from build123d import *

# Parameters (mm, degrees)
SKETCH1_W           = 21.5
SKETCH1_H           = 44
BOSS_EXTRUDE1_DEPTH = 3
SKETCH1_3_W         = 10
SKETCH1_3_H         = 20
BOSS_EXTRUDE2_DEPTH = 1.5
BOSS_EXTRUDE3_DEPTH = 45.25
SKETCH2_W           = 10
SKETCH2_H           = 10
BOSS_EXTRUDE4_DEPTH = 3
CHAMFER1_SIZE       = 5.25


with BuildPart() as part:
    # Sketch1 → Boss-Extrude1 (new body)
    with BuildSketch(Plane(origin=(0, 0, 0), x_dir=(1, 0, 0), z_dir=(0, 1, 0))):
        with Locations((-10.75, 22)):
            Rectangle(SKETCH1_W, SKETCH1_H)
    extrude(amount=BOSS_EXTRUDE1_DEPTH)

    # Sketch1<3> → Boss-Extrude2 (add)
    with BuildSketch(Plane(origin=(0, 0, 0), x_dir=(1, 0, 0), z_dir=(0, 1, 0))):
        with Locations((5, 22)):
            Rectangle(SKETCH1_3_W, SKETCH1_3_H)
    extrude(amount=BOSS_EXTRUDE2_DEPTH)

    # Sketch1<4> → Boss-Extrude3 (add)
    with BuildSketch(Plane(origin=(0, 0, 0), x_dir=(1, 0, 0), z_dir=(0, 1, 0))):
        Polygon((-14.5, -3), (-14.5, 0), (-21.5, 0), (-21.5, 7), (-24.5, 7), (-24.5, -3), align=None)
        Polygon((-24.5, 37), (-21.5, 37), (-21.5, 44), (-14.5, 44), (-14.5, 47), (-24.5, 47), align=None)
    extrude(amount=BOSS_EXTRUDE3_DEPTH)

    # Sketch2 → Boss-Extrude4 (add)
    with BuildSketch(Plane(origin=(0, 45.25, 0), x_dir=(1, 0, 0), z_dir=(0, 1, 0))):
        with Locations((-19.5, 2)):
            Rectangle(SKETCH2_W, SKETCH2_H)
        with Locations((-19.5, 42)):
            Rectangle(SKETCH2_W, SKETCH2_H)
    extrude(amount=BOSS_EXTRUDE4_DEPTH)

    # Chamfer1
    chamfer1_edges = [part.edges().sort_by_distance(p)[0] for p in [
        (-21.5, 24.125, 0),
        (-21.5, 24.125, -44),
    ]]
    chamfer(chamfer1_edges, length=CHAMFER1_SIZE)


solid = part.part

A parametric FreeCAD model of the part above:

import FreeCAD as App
import Part
import Sketcher

V = App.Vector


def edges_at(feature, points):
    """Names of the edges that pass closest to the given points."""
    edges = feature.Shape.Edges
    near = lambda p: min(range(len(edges)), key=lambda i: edges[i].distToShape(Part.Vertex(*p))[0])
    return sorted({f"Edge{near(p) + 1}" for p in points})

doc = App.newDocument("Part")
body = doc.addObject("PartDesign::Body", "Body")

sketch1 = doc.addObject("Sketcher::SketchObject", "Sketch")
body.addObject(sketch1)
sketch1.AttachmentSupport = (doc.XZ_Plane, [""])
sketch1.MapMode = "FlatFace"
sketch1.addGeometry([
    Part.LineSegment(V(-22, -44, 0), V(-22, 0, 0)),
    Part.LineSegment(V(-22, 0, 0), V(0, 0, 0)),
    Part.LineSegment(V(0, 0, 0), V(0, -44, 0)),
    Part.LineSegment(V(0, -44, 0), V(-22, -44, 0)),
], False)
sketch1.addConstraint([
    Sketcher.Constraint("Coincident", 0, 2, 1, 1),
    Sketcher.Constraint("Coincident", 1, 2, 2, 1),
    Sketcher.Constraint("Coincident", 2, 2, 3, 1),
    Sketcher.Constraint("Coincident", 3, 2, 0, 1),
    Sketcher.Constraint("Vertical", 0),
    Sketcher.Constraint("Horizontal", 1),
    Sketcher.Constraint("Vertical", 2),
    Sketcher.Constraint("Horizontal", 3),
    Sketcher.Constraint("Coincident", 1, 2, -1, 1),
    Sketcher.Constraint("DistanceY", 0, 1, 0, 2, 44.0),
    Sketcher.Constraint("DistanceX", 1, 1, 1, 2, 21.5),
])
pad1 = doc.addObject("PartDesign::Pad", "Pad")
body.addObject(pad1)
pad1.Profile = sketch1
pad1.Length = 3
pad1.Reversed = True

sketch2 = doc.addObject("Sketcher::SketchObject", "Sketch001")
body.addObject(sketch2)
sketch2.AttachmentSupport = (doc.XZ_Plane, [""])
sketch2.MapMode = "FlatFace"
sketch2.addGeometry([
    Part.LineSegment(V(0, -32, 0), V(0, -12, 0)),
    Part.LineSegment(V(0, -12, 0), V(10, -12, 0)),
    Part.LineSegment(V(10, -12, 0), V(10, -32, 0)),
    Part.LineSegment(V(10, -32, 0), V(0, -32, 0)),
], False)
sketch2.addConstraint([
    Sketcher.Constraint("Coincident", 0, 2, 1, 1),
    Sketcher.Constraint("Coincident", 1, 2, 2, 1),
    Sketcher.Constraint("Coincident", 2, 2, 3, 1),
    Sketcher.Constraint("Coincident", 3, 2, 0, 1),
    Sketcher.Constraint("Vertical", 0),
    Sketcher.Constraint("Horizontal", 1),
    Sketcher.Constraint("Vertical", 2),
    Sketcher.Constraint("Horizontal", 3),
    Sketcher.Constraint("PointOnObject", 0, 2, -2),
    Sketcher.Constraint("DistanceX", 1, 1, 1, 2, 10.0),
    Sketcher.Constraint("DistanceY", 0, 1, 0, 2, 20.0),
    Sketcher.Constraint("DistanceY", 0, 2, -1, 1, 12.0),
])
pad2 = doc.addObject("PartDesign::Pad", "Pad001")
body.addObject(pad2)
pad2.Profile = sketch2
pad2.Length = 1.5
pad2.Reversed = True

sketch3 = doc.addObject("Sketcher::SketchObject", "Sketch002")
body.addObject(sketch3)
sketch3.AttachmentSupport = (doc.XZ_Plane, [""])
sketch3.MapMode = "FlatFace"
sketch3.addGeometry([
    Part.LineSegment(V(-14.5, 3, 0), V(-14.5, 0, 0)),
    Part.LineSegment(V(-14.5, 0, 0), V(-21.5, 0, 0)),
    Part.LineSegment(V(-21.5, 0, 0), V(-21.5, -7, 0)),
    Part.LineSegment(V(-21.5, -7, 0), V(-24.5, -7, 0)),
    Part.LineSegment(V(-24.5, -7, 0), V(-24.5, 3, 0)),
    Part.LineSegment(V(-24.5, 3, 0), V(-14.5, 3, 0)),
    Part.LineSegment(V(-24.5, -37, 0), V(-21.5, -37, 0)),
    Part.LineSegment(V(-21.5, -37, 0), V(-21.5, -44, 0)),
    Part.LineSegment(V(-21.5, -44, 0), V(-14.5, -44, 0)),
    Part.LineSegment(V(-14.5, -44, 0), V(-14.5, -47, 0)),
    Part.LineSegment(V(-14.5, -47, 0), V(-24.5, -47, 0)),
    Part.LineSegment(V(-24.5, -47, 0), V(-24.5, -37, 0)),
], False)
sketch3.addConstraint([
    Sketcher.Constraint("Coincident", 0, 2, 1, 1),
    Sketcher.Constraint("Coincident", 1, 2, 2, 1),
    Sketcher.Constraint("Coincident", 2, 2, 3, 1),
    Sketcher.Constraint("Coincident", 3, 2, 4, 1),
    Sketcher.Constraint("Coincident", 4, 2, 5, 1),
    Sketcher.Constraint("Coincident", 5, 2, 0, 1),
    Sketcher.Constraint("Coincident", 6, 2, 7, 1),
    Sketcher.Constraint("Coincident", 7, 2, 8, 1),
    Sketcher.Constraint("Coincident", 8, 2, 9, 1),
    Sketcher.Constraint("Coincident", 9, 2, 10, 1),
    Sketcher.Constraint("Coincident", 10, 2, 11, 1),
    Sketcher.Constraint("Coincident", 11, 2, 6, 1),
    Sketcher.Constraint("Vertical", 0),
    Sketcher.Constraint("Horizontal", 1),
    Sketcher.Constraint("Vertical", 2),
    Sketcher.Constraint("Horizontal", 3),
    Sketcher.Constraint("Vertical", 4),
    Sketcher.Constraint("Horizontal", 5),
    Sketcher.Constraint("Horizontal", 6),
    Sketcher.Constraint("Vertical", 7),
    Sketcher.Constraint("Horizontal", 8),
    Sketcher.Constraint("Vertical", 9),
    Sketcher.Constraint("Horizontal", 10),
    Sketcher.Constraint("Vertical", 11),
    Sketcher.Constraint("PointOnObject", 0, 2, -1),
    Sketcher.Constraint("Vertical", 2, 2, 6, 2),
    Sketcher.Constraint("Vertical", 5, 2, 8, 2),
    Sketcher.Constraint("Vertical", 4, 2, 10, 2),
    Sketcher.Constraint("Equal", 6, 0),
    Sketcher.Constraint("Equal", 8, 2),
    Sketcher.Constraint("Equal", 2, 7),
    Sketcher.Constraint("Equal", 0, 9),
    Sketcher.Constraint("DistanceX", 1, 2, 1, 1, 7.0),
    Sketcher.Constraint("DistanceX", 3, 2, 3, 1, 3.0),
    Sketcher.Constraint("DistanceY", 6, 2, -1, 1, 37.0),
    Sketcher.Constraint("DistanceX", 0, 2, -1, 1, 14.5),
])
pad3 = doc.addObject("PartDesign::Pad", "Pad002")
body.addObject(pad3)
pad3.Profile = sketch3
pad3.Length = 45.25
pad3.Reversed = True

sketch4 = doc.addObject("Sketcher::SketchObject", "Sketch003")
body.addObject(sketch4)
sketch4.AttachmentSupport = (doc.XZ_Plane, [""])
sketch4.MapMode = "FlatFace"
sketch4.AttachmentOffset = App.Placement(V(0, 0, -45.25), App.Rotation())
sketch4.addGeometry([
    Part.LineSegment(V(-24, -7, 0), V(-24, 3, 0)),
    Part.LineSegment(V(-24, 3, 0), V(-14, 3, 0)),
    Part.LineSegment(V(-14, 3, 0), V(-14, -7, 0)),
    Part.LineSegment(V(-14, -7, 0), V(-24, -7, 0)),
    Part.LineSegment(V(-24, -47, 0), V(-24, -37, 0)),
    Part.LineSegment(V(-24, -37, 0), V(-14, -37, 0)),
    Part.LineSegment(V(-14, -37, 0), V(-14, -47, 0)),
    Part.LineSegment(V(-14, -47, 0), V(-24, -47, 0)),
], False)
sketch4.addConstraint([
    Sketcher.Constraint("Coincident", 0, 2, 1, 1),
    Sketcher.Constraint("Coincident", 1, 2, 2, 1),
    Sketcher.Constraint("Coincident", 2, 2, 3, 1),
    Sketcher.Constraint("Coincident", 3, 2, 0, 1),
    Sketcher.Constraint("Coincident", 4, 2, 5, 1),
    Sketcher.Constraint("Coincident", 5, 2, 6, 1),
    Sketcher.Constraint("Coincident", 6, 2, 7, 1),
    Sketcher.Constraint("Coincident", 7, 2, 4, 1),
    Sketcher.Constraint("Vertical", 0),
    Sketcher.Constraint("Horizontal", 1),
    Sketcher.Constraint("Vertical", 2),
    Sketcher.Constraint("Horizontal", 3),
    Sketcher.Constraint("Vertical", 4),
    Sketcher.Constraint("Horizontal", 5),
    Sketcher.Constraint("Vertical", 6),
    Sketcher.Constraint("Horizontal", 7),
    Sketcher.Constraint("Vertical", 3, 2, 4, 2),
    Sketcher.Constraint("Vertical", 2, 2, 5, 2),
    Sketcher.Constraint("Equal", 7, 0),
    Sketcher.Constraint("Equal", 2, 4),
    Sketcher.Constraint("DistanceX", 1, 1, 1, 2, 10.0),
    Sketcher.Constraint("DistanceY", -1, 1, 0, 2, 3.0),
    Sketcher.Constraint("DistanceY", 4, 2, -1, 1, 37.0),
    Sketcher.Constraint("DistanceX", 0, 2, -1, 1, 24.5),
])
pad4 = doc.addObject("PartDesign::Pad", "Pad003")
body.addObject(pad4)
pad4.Profile = sketch4
pad4.Length = 3
pad4.Reversed = True
doc.recompute()

chamfer = doc.addObject("PartDesign::Chamfer", "Chamfer")
body.addObject(chamfer)
chamfer.Base = (pad4, edges_at(pad4, [(-21.5, 24.125, 0), (-21.5, 24.125, -44)]))
chamfer.Size = 5.25

doc.recompute()
